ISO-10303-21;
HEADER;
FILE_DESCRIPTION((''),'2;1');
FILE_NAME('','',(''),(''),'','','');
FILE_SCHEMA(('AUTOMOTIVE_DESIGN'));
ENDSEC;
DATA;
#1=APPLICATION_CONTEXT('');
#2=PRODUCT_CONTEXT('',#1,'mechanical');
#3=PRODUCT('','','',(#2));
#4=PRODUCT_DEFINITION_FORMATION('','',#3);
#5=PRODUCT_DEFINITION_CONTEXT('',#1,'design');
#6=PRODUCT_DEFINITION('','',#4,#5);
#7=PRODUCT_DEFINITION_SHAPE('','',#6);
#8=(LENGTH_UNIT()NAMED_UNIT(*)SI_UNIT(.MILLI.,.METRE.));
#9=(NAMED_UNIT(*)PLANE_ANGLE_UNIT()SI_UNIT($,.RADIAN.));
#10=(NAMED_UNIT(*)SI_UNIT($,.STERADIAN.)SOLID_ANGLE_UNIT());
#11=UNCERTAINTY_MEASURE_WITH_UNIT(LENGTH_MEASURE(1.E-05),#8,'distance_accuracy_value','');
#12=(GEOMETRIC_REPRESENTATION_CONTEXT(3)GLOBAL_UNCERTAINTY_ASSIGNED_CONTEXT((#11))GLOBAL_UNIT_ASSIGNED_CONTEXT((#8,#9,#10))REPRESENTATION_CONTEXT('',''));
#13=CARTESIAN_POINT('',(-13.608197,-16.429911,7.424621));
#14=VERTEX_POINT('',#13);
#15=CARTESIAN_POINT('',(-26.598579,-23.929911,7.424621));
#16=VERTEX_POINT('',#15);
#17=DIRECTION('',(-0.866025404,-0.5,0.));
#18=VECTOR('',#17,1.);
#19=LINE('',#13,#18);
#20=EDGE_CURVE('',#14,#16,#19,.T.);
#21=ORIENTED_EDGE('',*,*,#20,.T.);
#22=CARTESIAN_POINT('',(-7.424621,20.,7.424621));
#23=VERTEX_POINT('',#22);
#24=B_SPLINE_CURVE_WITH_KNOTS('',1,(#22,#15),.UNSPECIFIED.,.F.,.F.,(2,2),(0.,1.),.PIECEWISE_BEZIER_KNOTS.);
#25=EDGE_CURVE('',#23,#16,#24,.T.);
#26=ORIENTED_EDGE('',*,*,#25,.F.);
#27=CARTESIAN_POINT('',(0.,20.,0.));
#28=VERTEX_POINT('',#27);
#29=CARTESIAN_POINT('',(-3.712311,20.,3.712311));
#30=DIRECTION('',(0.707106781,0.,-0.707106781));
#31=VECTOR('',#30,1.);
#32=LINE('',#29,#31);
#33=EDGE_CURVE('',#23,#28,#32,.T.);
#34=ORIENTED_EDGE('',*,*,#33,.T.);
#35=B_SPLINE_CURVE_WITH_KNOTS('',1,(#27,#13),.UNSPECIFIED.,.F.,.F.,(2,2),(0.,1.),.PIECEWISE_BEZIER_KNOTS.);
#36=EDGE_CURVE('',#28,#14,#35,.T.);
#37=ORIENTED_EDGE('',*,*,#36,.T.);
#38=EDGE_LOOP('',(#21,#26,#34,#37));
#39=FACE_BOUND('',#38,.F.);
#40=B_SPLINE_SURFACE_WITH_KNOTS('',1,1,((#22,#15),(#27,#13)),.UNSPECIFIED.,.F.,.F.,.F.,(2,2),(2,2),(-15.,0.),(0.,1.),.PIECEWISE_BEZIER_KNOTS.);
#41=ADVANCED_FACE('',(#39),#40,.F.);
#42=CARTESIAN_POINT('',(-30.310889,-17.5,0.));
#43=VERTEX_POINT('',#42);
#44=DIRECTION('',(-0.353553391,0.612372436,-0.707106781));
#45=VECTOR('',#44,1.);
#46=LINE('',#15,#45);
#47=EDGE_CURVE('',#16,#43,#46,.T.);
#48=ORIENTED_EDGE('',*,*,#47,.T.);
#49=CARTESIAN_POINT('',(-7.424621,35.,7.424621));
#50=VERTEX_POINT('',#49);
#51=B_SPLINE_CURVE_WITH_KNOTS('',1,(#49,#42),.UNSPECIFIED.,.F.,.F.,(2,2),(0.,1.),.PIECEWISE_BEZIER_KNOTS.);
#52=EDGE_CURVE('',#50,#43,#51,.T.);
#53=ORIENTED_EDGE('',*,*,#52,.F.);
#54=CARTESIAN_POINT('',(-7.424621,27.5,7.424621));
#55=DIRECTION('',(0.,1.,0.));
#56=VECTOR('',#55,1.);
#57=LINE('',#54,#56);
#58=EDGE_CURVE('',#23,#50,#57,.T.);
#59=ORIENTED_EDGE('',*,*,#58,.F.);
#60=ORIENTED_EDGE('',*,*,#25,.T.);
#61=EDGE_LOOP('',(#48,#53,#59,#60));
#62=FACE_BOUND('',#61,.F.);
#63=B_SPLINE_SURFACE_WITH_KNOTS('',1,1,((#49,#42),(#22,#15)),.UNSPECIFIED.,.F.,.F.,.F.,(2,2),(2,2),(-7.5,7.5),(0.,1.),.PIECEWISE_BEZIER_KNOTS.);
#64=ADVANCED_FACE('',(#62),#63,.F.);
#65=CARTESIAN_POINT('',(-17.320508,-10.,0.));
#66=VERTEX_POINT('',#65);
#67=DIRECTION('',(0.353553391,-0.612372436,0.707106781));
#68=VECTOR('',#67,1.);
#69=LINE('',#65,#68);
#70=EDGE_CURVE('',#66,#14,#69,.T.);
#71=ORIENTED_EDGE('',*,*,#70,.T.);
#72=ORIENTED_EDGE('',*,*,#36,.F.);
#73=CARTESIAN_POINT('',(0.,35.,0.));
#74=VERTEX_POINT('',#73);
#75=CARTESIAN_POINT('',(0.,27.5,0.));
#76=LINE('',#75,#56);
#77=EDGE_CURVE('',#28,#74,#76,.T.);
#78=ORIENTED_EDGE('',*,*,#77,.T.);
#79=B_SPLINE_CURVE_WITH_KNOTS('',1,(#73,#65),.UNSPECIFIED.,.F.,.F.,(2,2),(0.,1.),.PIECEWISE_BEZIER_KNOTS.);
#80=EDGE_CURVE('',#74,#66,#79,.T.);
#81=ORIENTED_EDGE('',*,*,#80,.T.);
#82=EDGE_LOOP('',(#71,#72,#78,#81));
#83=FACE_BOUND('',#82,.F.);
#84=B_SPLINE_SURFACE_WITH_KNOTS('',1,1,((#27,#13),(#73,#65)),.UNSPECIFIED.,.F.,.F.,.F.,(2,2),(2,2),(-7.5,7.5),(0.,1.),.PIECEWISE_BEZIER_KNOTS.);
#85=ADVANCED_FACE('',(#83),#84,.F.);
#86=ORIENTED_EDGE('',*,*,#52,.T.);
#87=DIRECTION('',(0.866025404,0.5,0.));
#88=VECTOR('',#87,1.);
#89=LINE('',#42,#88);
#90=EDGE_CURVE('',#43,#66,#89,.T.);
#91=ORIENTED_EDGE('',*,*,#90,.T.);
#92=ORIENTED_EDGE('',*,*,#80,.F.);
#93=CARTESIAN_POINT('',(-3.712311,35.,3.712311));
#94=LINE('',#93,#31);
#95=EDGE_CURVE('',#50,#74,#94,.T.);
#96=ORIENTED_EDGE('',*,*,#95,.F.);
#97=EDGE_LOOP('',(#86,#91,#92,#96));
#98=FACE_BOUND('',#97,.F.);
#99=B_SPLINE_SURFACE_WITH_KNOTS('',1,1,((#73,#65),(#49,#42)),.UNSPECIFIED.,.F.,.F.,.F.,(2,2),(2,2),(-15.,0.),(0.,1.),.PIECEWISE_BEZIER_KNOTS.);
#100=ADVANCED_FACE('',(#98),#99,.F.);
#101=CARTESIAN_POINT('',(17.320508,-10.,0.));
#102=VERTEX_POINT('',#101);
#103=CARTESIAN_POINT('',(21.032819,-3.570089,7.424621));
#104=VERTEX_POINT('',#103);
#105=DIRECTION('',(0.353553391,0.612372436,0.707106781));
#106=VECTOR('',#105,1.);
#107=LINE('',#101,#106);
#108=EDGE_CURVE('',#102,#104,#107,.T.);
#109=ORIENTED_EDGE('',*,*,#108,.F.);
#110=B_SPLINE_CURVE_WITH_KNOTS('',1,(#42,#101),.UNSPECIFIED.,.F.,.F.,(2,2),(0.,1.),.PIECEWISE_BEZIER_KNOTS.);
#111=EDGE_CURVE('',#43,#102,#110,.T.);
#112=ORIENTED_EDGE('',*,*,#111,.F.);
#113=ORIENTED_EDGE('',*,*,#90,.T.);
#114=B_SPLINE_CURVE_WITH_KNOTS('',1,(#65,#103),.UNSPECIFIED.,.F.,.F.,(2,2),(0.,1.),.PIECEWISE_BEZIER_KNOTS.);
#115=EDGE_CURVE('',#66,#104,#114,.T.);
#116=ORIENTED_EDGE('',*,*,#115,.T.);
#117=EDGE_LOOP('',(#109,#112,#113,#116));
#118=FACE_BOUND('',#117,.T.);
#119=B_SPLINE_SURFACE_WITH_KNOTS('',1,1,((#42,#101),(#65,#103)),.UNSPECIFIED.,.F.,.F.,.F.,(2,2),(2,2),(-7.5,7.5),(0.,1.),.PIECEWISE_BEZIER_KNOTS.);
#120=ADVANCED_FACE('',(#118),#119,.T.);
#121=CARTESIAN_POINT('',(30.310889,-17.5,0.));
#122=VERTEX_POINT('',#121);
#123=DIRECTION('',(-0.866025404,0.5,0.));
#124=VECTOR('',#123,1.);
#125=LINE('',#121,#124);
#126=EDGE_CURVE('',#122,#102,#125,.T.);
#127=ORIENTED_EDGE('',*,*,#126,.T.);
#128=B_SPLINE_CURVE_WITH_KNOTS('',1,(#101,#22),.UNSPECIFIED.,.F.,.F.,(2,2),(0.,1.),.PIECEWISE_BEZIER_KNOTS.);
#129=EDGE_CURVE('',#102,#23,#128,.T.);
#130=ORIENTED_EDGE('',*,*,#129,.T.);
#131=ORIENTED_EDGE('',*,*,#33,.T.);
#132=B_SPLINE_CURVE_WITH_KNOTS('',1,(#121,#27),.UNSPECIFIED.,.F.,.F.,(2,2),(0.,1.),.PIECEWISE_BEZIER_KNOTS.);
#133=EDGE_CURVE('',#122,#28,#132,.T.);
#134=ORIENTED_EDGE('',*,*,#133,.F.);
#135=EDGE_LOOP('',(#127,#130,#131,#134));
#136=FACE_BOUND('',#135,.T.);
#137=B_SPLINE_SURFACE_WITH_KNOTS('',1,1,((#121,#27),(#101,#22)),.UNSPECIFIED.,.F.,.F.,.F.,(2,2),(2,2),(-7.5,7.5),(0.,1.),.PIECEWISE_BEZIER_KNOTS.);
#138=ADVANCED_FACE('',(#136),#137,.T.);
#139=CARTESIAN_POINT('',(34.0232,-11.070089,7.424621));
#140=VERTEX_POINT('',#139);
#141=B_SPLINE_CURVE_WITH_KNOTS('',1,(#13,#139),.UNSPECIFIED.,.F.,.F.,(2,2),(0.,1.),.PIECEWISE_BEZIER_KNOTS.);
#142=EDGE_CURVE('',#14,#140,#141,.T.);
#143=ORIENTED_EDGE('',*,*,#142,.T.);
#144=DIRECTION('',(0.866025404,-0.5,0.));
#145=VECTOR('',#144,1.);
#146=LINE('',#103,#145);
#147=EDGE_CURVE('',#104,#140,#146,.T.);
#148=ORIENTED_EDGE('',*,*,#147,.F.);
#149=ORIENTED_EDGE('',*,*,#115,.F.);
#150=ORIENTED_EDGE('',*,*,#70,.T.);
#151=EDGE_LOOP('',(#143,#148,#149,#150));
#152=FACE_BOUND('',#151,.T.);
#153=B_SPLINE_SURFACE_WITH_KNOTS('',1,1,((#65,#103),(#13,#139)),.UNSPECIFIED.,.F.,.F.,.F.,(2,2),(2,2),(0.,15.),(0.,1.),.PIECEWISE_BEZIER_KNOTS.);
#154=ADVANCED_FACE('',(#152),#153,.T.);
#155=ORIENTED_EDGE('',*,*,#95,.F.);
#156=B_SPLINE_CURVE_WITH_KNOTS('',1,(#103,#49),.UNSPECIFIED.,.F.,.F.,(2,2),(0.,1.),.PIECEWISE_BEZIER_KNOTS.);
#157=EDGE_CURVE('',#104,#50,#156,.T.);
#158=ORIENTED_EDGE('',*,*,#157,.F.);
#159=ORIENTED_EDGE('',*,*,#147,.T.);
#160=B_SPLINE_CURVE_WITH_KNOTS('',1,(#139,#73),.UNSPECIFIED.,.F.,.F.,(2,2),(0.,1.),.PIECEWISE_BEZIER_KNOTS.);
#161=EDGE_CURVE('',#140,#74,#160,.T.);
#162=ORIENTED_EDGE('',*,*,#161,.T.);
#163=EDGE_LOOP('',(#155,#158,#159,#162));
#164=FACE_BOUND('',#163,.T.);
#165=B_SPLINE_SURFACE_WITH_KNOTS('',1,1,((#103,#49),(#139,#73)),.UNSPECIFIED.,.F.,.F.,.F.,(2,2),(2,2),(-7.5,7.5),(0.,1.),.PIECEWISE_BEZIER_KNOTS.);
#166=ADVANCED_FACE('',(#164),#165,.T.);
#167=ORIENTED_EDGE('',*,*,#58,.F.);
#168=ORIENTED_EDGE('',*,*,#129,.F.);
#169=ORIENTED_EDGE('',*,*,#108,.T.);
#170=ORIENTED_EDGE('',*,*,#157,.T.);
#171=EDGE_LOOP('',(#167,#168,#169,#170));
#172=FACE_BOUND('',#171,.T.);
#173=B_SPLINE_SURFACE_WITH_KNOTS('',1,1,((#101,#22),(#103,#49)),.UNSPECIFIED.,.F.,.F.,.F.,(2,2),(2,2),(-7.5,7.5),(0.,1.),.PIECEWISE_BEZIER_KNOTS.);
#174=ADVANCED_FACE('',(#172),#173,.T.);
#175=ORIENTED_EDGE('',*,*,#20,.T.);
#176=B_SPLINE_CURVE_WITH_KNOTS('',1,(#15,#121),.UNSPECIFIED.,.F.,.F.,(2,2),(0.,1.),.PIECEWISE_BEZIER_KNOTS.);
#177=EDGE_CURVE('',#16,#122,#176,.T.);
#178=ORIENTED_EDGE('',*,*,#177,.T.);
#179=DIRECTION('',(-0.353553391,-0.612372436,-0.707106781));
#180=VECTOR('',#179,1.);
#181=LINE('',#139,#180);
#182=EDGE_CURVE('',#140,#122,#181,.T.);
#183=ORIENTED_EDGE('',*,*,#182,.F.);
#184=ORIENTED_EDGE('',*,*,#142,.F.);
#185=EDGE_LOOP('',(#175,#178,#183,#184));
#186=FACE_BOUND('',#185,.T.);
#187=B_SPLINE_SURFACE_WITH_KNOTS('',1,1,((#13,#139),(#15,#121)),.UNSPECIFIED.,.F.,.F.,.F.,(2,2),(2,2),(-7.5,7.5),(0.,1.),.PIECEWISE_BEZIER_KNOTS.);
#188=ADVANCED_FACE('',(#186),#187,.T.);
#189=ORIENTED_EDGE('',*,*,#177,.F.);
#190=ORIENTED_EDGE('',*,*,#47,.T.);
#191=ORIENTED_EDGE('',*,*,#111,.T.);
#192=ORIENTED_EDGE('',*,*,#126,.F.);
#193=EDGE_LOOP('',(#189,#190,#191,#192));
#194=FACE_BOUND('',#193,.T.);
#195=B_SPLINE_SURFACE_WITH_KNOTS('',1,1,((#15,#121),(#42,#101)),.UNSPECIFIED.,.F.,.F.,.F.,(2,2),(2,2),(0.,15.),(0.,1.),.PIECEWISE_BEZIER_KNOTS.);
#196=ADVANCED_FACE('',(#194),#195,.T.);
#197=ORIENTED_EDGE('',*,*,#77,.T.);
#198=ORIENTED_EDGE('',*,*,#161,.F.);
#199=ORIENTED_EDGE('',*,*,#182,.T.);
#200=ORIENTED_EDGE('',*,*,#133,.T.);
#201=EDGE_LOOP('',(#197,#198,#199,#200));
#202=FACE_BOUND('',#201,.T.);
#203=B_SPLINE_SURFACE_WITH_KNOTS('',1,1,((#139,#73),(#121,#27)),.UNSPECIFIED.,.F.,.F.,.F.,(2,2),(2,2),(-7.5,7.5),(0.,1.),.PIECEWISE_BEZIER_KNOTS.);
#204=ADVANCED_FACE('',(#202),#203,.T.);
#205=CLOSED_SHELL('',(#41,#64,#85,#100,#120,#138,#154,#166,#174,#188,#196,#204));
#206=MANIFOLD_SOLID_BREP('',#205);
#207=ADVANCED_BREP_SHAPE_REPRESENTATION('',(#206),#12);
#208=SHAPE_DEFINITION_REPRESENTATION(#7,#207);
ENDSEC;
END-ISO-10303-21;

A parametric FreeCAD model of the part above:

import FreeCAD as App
import Part
import Sketcher
from FreeCAD import Vector


def add_polygon(sketch, points):
    """Adds a closed chain of lines whose ends are joined by coincident constraints."""
    first, n = sketch.GeometryCount, len(points)
    for a, b in zip(points, points[1:] + points[:1]):
        sketch.addGeometry(Part.LineSegment(App.Vector(*a, 0), App.Vector(*b, 0)), False)
    for i in range(n):
        sketch.addConstraint(Sketcher.Constraint("Coincident", first + i, 2, first + (i + 1) % n, 1))

doc = App.newDocument("Part")
params = doc.addObject("Spreadsheet::Sheet", "Params")
for row, (alias, value) in enumerate([
    ("sketch1_height", "15 mm"),
    ("sketch1_width", "10.5 mm"),
    ("sketch2_length", "15 mm"),
    ("sketch2_length2", "10.5 mm"),
    ("sketch3_width", "15 mm"),
    ("sketch3_height", "10.5 mm"),
    ("sketch4_length", "15 mm"),
    ("sketch4_length2", "10.5 mm"),
    ("sketch5_width", "15 mm"),
    ("sketch5_height", "10.5 mm"),
    ("sketch6_width", "15 mm"),
    ("sketch6_height", "10.5 mm"),
], start=1):
    params.set(f"A{row}", alias)
    params.set(f"B{row}", "=" + value)
    params.setAlias(f"B{row}", alias)

body = doc.addObject("PartDesign::Body", "Body")

sketch1 = body.newObject("Sketcher::SketchObject", "Sketch")
sketch1.Placement = App.Placement(Vector(0, 0, 0), App.Rotation(Vector(0.707106781, 0, -0.707106781), Vector(0, 0.999999999, 0), Vector(0.707106781, 0, 0.707106781), "ZXY"))
add_polygon(sketch1, [(-10, 35), (-10, 20), (0, 20), (0, 35)])
sketch1.addConstraint([
    Sketcher.Constraint("Vertical", 0),
    Sketcher.Constraint("Horizontal", 1),
    Sketcher.Constraint("Vertical", 2),
    Sketcher.Constraint("Horizontal", 3),
    Sketcher.Constraint("PointOnObject", 1, 2, -2),
    Sketcher.Constraint("DistanceY", 0, 2, 0, 1, 15.0),
    Sketcher.Constraint("DistanceX", 1, 1, 1, 2, 10.5),
    Sketcher.Constraint("DistanceY", -1, 1, 0, 2, 20.0),
])
sketch1.setExpression("Constraints[9]", "Params.sketch1_height")
sketch1.setExpression("Constraints[10]", "Params.sketch1_width")

sketch2 = body.newObject("Sketcher::SketchObject", "Sketch001")
sketch2.Placement = App.Placement(Vector(0, 0, 0), App.Rotation(Vector(0.935414347, 0.231455025, 0.267261242), Vector(0, -0.755928946, 0.654653671), Vector(0.353553391, -0.612372436, -0.707106781), "ZXY"))
add_polygon(sketch2, [(-19, 8), (-15, 17), (-28, 23), (-32, 13)])
sketch2.addConstraint([
    Sketcher.Constraint("Perpendicular", 0, 1),
    Sketcher.Constraint("Perpendicular", 1, 2),
    Sketcher.Constraint("Perpendicular", 2, 3),
    Sketcher.Constraint("Distance", 1, 15.0),
    Sketcher.Constraint("Distance", 0, 10.5),
    Sketcher.Constraint("DistanceY", -1, 1, 0, 2, 17.280401),
    Sketcher.Constraint("DistanceX", 1, 2, 0, 2, 13.887302),
    Sketcher.Constraint("DistanceX", 0, 2, -1, 1, 14.547775),
])
sketch2.setExpression("Constraints[7]", "Params.sketch2_length")
sketch2.setExpression("Constraints[8]", "Params.sketch2_length2")

additiveloft = body.newObject("PartDesign::AdditiveLoft", "AdditiveLoft")
additiveloft.Profile = sketch1
additiveloft.Sections = [sketch2]

sketch3 = body.newObject("Sketcher::SketchObject", "Sketch002")
sketch3.Placement = App.Placement(Vector(-21.959543, -16.964955, 3.712311), App.Rotation(Vector(0.866025404, 0.5, 0), Vector(0.353553391, -0.612372436, 0.707106782), Vector(0.353553391, -0.612372436, -0.707106781), "ZXY"))
add_polygon(sketch3, [(-8, 5), (-8, -5), (8, -5), (8, 5)])
sketch3.addConstraint([
    Sketcher.Constraint("Vertical", 0),
    Sketcher.Constraint("Horizontal", 1),
    Sketcher.Constraint("Vertical", 2),
    Sketcher.Constraint("Horizontal", 3),
    Sketcher.Constraint("Symmetric", 0, 2, 2, 2, -1, 1),
    Sketcher.Constraint("DistanceX", 1, 1, 1, 2, 15.0),
    Sketcher.Constraint("DistanceY", 0, 2, 0, 1, 10.5),
])
sketch3.setExpression("Constraints[9]", "Params.sketch3_width")
sketch3.setExpression("Constraints[10]", "Params.sketch3_height")

sketch4 = body.newObject("Sketcher::SketchObject", "Sketch003")
sketch4.Placement = App.Placement(Vector(0, 0, 0), App.Rotation(Vector(0.935414347, -0.231455025, 0.267261242), Vector(0, -0.755928946, -0.654653671), Vector(0.353553391, 0.612372436, -0.707106781), "ZXY"))
add_polygon(sketch4, [(32, 13), (19, 8), (22, -2), (36, 4)])
sketch4.addConstraint([
    Sketcher.Constraint("Perpendicular", 0, 1),
    Sketcher.Constraint("Perpendicular", 1, 2),
    Sketcher.Constraint("Perpendicular", 2, 3),
    Sketcher.Constraint("Distance", 0, 15.0),
    Sketcher.Constraint("Distance", 1, 10.5),
    Sketcher.Constraint("DistanceX", 1, 2, 2, 2, 13.887302),
    Sketcher.Constraint("DistanceY", -1, 1, 0, 2, 7.559289),
    Sketcher.Constraint("DistanceX", -1, 1, 1, 2, 22.485029),
])
sketch4.setExpression("Constraints[7]", "Params.sketch4_length")
sketch4.setExpression("Constraints[8]", "Params.sketch4_length2")

additiveloft2 = body.newObject("PartDesign::AdditiveLoft", "AdditiveLoft001")
additiveloft2.Profile = sketch3
additiveloft2.Sections = [sketch4]

sketch5 = body.newObject("Sketcher::SketchObject", "Sketch004")
sketch5.Placement = App.Placement(Vector(25.671854, -10.535045, 3.712311), App.Rotation(Vector(-0.866025404, 0.5, 0), Vector(0.353553391, 0.612372436, 0.707106782), Vector(0.353553391, 0.612372436, -0.707106781), "ZXY"))
add_polygon(sketch5, [(-8, 5), (-8, -5), (8, -5), (8, 5)])
sketch5.addConstraint([
    Sketcher.Constraint("Vertical", 0),
    Sketcher.Constraint("Horizontal", 1),
    Sketcher.Constraint("Vertical", 2),
    Sketcher.Constraint("Horizontal", 3),
    Sketcher.Constraint("Symmetric", 0, 2, 2, 2, -1, 1),
    Sketcher.Constraint("DistanceX", 1, 1, 1, 2, 15.0),
    Sketcher.Constraint("DistanceY", 0, 2, 0, 1, 10.5),
])
sketch5.setExpression("Constraints[9]", "Params.sketch5_width")
sketch5.setExpression("Constraints[10]", "Params.sketch5_height")

sketch6 = body.newObject("Sketcher::SketchObject", "Sketch005")
sketch6.Placement = App.Placement(Vector(-3.712311, 27.5, 3.712311), App.Rotation(Vector(0, 1, 0), Vector(-0.707106781, 0, 0.707106781), Vector(0.707106781, 0, 0.707106781), "ZXY"))
add_polygon(sketch6, [(-8, 5), (-8, -5), (8, -5), (8, 5)])
sketch6.addConstraint([
    Sketcher.Constraint("Vertical", 0),
    Sketcher.Constraint("Horizontal", 1),
    Sketcher.Constraint("Vertical", 2),
    Sketcher.Constraint("Horizontal", 3),
    Sketcher.Constraint("Symmetric", 0, 2, 2, 2, -1, 1),
    Sketcher.Constraint("DistanceX", 1, 1, 1, 2, 15.0),
    Sketcher.Constraint("DistanceY", 0, 2, 0, 1, 10.5),
])
sketch6.setExpression("Constraints[9]", "Params.sketch6_width")
sketch6.setExpression("Constraints[10]", "Params.sketch6_height")

additiveloft3 = body.newObject("PartDesign::AdditiveLoft", "AdditiveLoft002")
additiveloft3.Profile = sketch5
additiveloft3.Sections = [sketch6]

doc.recompute()
